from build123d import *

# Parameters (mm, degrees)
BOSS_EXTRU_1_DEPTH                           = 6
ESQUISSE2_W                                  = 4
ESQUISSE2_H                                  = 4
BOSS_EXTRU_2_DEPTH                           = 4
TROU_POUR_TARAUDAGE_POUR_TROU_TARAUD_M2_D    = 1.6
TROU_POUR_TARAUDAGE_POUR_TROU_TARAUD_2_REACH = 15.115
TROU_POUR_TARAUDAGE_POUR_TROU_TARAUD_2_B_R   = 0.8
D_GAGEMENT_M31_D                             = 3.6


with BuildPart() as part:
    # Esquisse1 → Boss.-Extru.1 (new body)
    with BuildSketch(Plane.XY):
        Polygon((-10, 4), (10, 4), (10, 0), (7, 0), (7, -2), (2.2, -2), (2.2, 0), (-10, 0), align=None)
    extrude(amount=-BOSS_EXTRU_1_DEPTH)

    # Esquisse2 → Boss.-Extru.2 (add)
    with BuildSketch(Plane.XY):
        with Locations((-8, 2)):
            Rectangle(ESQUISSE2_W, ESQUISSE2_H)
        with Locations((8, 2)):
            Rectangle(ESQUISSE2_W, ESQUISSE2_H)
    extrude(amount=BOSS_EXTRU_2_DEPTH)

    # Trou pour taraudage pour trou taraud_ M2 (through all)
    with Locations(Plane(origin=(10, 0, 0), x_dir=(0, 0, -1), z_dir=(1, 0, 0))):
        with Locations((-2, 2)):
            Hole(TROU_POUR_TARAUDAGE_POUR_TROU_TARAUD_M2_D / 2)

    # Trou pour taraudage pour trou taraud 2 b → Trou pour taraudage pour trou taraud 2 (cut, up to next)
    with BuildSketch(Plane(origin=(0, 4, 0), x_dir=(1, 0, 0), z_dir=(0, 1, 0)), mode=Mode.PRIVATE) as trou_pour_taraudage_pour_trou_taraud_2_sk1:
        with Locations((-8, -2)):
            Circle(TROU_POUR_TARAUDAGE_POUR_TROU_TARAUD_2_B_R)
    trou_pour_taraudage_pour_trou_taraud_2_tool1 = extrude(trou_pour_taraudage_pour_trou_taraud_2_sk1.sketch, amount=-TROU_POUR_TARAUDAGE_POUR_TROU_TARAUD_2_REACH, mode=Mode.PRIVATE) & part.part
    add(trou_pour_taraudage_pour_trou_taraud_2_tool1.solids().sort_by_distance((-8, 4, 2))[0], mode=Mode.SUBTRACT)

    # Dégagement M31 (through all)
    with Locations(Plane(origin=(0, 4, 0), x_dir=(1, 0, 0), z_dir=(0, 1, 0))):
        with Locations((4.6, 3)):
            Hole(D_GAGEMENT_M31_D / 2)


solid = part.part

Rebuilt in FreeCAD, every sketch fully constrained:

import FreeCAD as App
import Part
import Sketcher

V = App.Vector


def add_polygon(sketch, points):
    """Adds a closed chain of lines whose ends are joined by coincident constraints."""
    first, n = sketch.GeometryCount, len(points)
    for a, b in zip(points, points[1:] + points[:1]):
        sketch.addGeometry(Part.LineSegment(App.Vector(*a, 0), App.Vector(*b, 0)), False)
    for i in range(n):
        sketch.addConstraint(Sketcher.Constraint("Coincident", first + i, 2, first + (i + 1) % n, 1))

doc = App.newDocument("Part")
params = doc.addObject("Spreadsheet::Sheet", "Params")
for row, (alias, value) in enumerate([
    ("sketch1_width", "20 mm"),
    ("sketch1_width2", "3 mm"),
    ("sketch1_height", "4 mm"),
    ("sketch1_height2", "2 mm"),
    ("sketch1_width3", "12.2 mm"),
    ("pad1_length", "6 mm"),
    ("sketch2_width", "4 mm"),
    ("pad2_length", "4 mm"),
    ("sketch3_diameter", "1.6 mm"),
    ("hole_diameter", "1.6 mm"),
    ("sketch4_diameter", "1.6 mm"),
    ("sketch5_diameter", "3.6 mm"),
    ("hole2_diameter", "3.6 mm"),
], start=1):
    params.set(f"A{row}", alias)
    params.set(f"B{row}", "=" + value)
    params.setAlias(f"B{row}", alias)

body = doc.addObject("PartDesign::Body", "Body")

# Sketch on XY plane
sketch1 = body.newObject("Sketcher::SketchObject", "Sketch")
sketch1.AttachmentSupport = (doc.getObject("XY_Plane"), [""])
sketch1.MapMode = "FlatFace"
add_polygon(sketch1, [(10, 4), (-10, 4), (-10, 0), (2.2, 0), (2.2, -2), (7, -2), (7, 0), (10, 0)])  # lines 0-7
sketch1.addConstraint([
    Sketcher.Constraint("Horizontal", 0),
    Sketcher.Constraint("Vertical", 1),
    Sketcher.Constraint("Horizontal", 2),
    Sketcher.Constraint("Vertical", 3),
    Sketcher.Constraint("Horizontal", 4),
    Sketcher.Constraint("Vertical", 5),
    Sketcher.Constraint("Horizontal", 6),
    Sketcher.Constraint("Vertical", 7),
    Sketcher.Constraint("Symmetric", 1, 2, 6, 2, -1, 1),
    Sketcher.Constraint("PointOnObject", 1, 2, -1),
    Sketcher.Constraint("DistanceX", 0, 2, 0, 1, 20.0),
    Sketcher.Constraint("DistanceX", 6, 1, 6, 2, 3.0),
    Sketcher.Constraint("DistanceY", 1, 2, 1, 1, 4.0),
    Sketcher.Constraint("DistanceY", 3, 2, 3, 1, 2.0),
    Sketcher.Constraint("DistanceX", 2, 1, 2, 2, 12.2),
])
sketch1.setExpression("Constraints[18]", "Params.sketch1_width")
sketch1.setExpression("Constraints[19]", "Params.sketch1_width2")
sketch1.setExpression("Constraints[20]", "Params.sketch1_height")
sketch1.setExpression("Constraints[21]", "Params.sketch1_height2")
sketch1.setExpression("Constraints[22]", "Params.sketch1_width3")
pad1 = body.newObject("PartDesign::Pad", "Pad")
pad1.Profile = sketch1
pad1.setExpression("Length", "Params.pad1_length")
pad1.Reversed = True

# Sketch on XY plane
sketch2 = body.newObject("Sketcher::SketchObject", "Sketch001")
sketch2.AttachmentSupport = (doc.getObject("XY_Plane"), [""])
sketch2.MapMode = "FlatFace"
add_polygon(sketch2, [(-10, 4), (-10, 0), (-6, 0), (-6, 4)])  # lines 0-3
add_polygon(sketch2, [(6, 4), (6, 0), (10, 0), (10, 4)])  # lines 4-7
sketch2.addConstraint([
    Sketcher.Constraint("Vertical", 0),
    Sketcher.Constraint("Horizontal", 1),
    Sketcher.Constraint("Vertical", 2),
    Sketcher.Constraint("Horizontal", 3),
    Sketcher.Constraint("Vertical", 4),
    Sketcher.Constraint("Horizontal", 5),
    Sketcher.Constraint("Vertical", 6),
    Sketcher.Constraint("Horizontal", 7),
    Sketcher.Constraint("Symmetric", 1, 2, 4, 2, -1, 1),
    Sketcher.Constraint("Symmetric", 0, 2, 5, 2, -2),
    Sketcher.Constraint("Horizontal", 3, 2, 6, 2),
    Sketcher.Constraint("Equal", 7, 0),
    Sketcher.Constraint("DistanceX", 1, 1, 1, 2, 4.0),
    Sketcher.Constraint("DistanceX", 0, 2, -1, 1, 10.0),
])
sketch2.setExpression("Constraints[20]", "Params.sketch2_width")
pad2 = body.newObject("PartDesign::Pad", "Pad001")
pad2.Profile = sketch2
pad2.setExpression("Length", "Params.pad2_length")

# Sketch on YZ plane
sketch3 = body.newObject("Sketcher::SketchObject", "Sketch002")
sketch3.AttachmentSupport = (doc.getObject("YZ_Plane"), [""])
sketch3.MapMode = "FlatFace"
sketch3.AttachmentOffset = App.Placement(V(0, 0, 10), App.Rotation())
sketch3.addGeometry(Part.Circle(V(2, 2, 0), V(0, 0, 1), 0.8), False)
sketch3.addConstraint([
    Sketcher.Constraint("Diameter", 0, 1.6),
    Sketcher.Constraint("DistanceX", -1, 1, 0, 3, 2.0),
    Sketcher.Constraint("DistanceY", -1, 1, 0, 3, 2.0),
])
sketch3.setExpression("Constraints[0]", "Params.sketch3_diameter")
doc.recompute()
hole = body.newObject("PartDesign::Hole", "Hole")
hole.Profile = sketch3
hole.ThreadType = "None"
hole.setExpression("Diameter", "Params.hole_diameter")
hole.DepthType = "ThroughAll"

# Sketch on XZ plane
sketch4 = body.newObject("Sketcher::SketchObject", "Sketch003")
sketch4.AttachmentSupport = (doc.getObject("XZ_Plane"), [""])
sketch4.MapMode = "FlatFace"
sketch4.AttachmentOffset = App.Placement(V(0, 0, -4), App.Rotation())
sketch4.addGeometry(Part.Circle(V(-8, 2, 0), V(0, 0, 1), 0.8), False)
sketch4.addConstraint([
    Sketcher.Constraint("Diameter", 0, 1.6),
    Sketcher.Constraint("DistanceX", 0, 3, -1, 1, 8.0),
    Sketcher.Constraint("DistanceY", -1, 1, 0, 3, 2.0),
])
sketch4.setExpression("Constraints[0]", "Params.sketch4_diameter")
pocket1 = body.newObject("PartDesign::Pocket", "Pocket")
pocket1.Profile = sketch4
pocket1.Type = "UpToFirst"
pocket1.Reversed = True

# Sketch on XZ plane
sketch5 = body.newObject("Sketcher::SketchObject", "Sketch004")
sketch5.AttachmentSupport = (doc.getObject("XZ_Plane"), [""])
sketch5.MapMode = "FlatFace"
sketch5.AttachmentOffset = App.Placement(V(0, 0, -4), App.Rotation())
sketch5.addGeometry(Part.Circle(V(4.6, -3, 0), V(0, 0, 1), 1.8), False)
sketch5.addConstraint([
    Sketcher.Constraint("Diameter", 0, 3.6),
    Sketcher.Constraint("DistanceY", 0, 3, -1, 1, 3.0),
    Sketcher.Constraint("DistanceX", -1, 1, 0, 3, 4.6),
])
sketch5.setExpression("Constraints[0]", "Params.sketch5_diameter")
doc.recompute()
hole2 = body.newObject("PartDesign::Hole", "Hole001")
hole2.Profile = sketch5
hole2.ThreadType = "None"
hole2.setExpression("Diameter", "Params.hole2_diameter")
hole2.DepthType = "ThroughAll"
hole2.Reversed = True

doc.recompute()
